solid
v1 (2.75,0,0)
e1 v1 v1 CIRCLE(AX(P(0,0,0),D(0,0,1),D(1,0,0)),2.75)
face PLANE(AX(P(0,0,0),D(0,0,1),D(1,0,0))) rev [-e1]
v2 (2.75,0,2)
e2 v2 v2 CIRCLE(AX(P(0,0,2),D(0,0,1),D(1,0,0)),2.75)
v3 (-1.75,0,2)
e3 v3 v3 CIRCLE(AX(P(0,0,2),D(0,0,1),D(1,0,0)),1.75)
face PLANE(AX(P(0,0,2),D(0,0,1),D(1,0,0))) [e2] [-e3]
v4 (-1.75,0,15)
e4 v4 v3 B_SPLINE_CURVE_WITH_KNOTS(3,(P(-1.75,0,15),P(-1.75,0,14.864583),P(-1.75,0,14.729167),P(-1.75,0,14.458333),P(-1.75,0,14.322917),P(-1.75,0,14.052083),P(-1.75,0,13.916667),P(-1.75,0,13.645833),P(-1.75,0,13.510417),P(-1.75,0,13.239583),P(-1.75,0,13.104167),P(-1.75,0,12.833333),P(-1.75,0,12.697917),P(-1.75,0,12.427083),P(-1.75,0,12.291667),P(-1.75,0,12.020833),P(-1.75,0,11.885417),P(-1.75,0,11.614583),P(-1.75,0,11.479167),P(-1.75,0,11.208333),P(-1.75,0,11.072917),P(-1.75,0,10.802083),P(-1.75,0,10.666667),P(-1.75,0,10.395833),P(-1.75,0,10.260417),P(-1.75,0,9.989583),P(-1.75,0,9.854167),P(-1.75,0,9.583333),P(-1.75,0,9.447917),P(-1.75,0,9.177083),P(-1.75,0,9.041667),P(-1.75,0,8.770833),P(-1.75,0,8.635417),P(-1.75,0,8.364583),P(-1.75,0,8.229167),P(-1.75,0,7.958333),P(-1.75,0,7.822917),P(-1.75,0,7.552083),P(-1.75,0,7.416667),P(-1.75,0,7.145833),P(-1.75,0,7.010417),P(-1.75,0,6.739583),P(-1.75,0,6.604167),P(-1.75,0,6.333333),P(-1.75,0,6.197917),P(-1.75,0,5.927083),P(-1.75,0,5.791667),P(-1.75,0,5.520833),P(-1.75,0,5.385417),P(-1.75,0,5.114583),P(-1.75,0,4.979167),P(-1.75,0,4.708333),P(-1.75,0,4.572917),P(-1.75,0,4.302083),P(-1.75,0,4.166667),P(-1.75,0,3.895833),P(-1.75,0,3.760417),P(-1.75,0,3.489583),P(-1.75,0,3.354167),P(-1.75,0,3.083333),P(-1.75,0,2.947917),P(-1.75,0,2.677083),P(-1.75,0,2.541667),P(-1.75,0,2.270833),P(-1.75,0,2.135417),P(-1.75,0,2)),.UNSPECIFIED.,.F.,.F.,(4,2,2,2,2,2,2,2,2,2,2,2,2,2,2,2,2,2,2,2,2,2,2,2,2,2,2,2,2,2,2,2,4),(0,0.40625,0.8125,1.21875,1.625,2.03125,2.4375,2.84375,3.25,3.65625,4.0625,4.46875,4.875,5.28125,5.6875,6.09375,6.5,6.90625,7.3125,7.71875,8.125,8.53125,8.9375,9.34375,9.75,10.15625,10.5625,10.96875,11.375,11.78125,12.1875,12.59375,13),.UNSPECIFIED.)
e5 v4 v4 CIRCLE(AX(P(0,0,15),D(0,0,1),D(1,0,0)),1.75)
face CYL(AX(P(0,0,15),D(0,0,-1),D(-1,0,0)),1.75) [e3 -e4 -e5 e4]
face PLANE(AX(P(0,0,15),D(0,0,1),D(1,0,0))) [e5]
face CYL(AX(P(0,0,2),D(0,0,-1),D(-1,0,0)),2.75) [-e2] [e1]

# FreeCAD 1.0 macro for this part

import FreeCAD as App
import Part
import Sketcher

V = App.Vector

doc = App.newDocument("Part")
params = doc.addObject("Spreadsheet::Sheet", "Params")
for row, (alias, value) in enumerate([
    ("sketch1_diameter", "5.5 mm"),
    ("pad1_length", "2 mm"),
    ("sketch2_diameter", "3.5 mm"),
    ("pad2_length", "13 mm"),
], start=1):
    params.set(f"A{row}", alias)
    params.set(f"B{row}", "=" + value)
    params.setAlias(f"B{row}", alias)

body = doc.addObject("PartDesign::Body", "Body")

sketch1 = body.newObject("Sketcher::SketchObject", "Sketch")
sketch1.AttachmentSupport = (doc.getObject("XY_Plane"), [""])
sketch1.MapMode = "FlatFace"
sketch1.addGeometry(Part.Circle(V(0, 0, 0), V(0, 0, 1), 2.8), False)
sketch1.addConstraint(Sketcher.Constraint("Coincident", 0, 3, -1, 1))
sketch1.addConstraint(Sketcher.Constraint("Diameter", 0, 5.5))
sketch1.setExpression("Constraints[1]", "Params.sketch1_diameter")
pad1 = body.newObject("PartDesign::Pad", "Pad")
pad1.Profile = sketch1
pad1.setExpression("Length", "Params.pad1_length")

sketch2 = body.newObject("Sketcher::SketchObject", "Sketch001")
sketch2.AttachmentSupport = (doc.getObject("XY_Plane"), [""])
sketch2.MapMode = "FlatFace"
sketch2.AttachmentOffset = App.Placement(V(0, 0, 2), App.Rotation())
sketch2.addGeometry(Part.Circle(V(0, 0, 0), V(0, 0, 1), 1.8), False)
sketch2.addConstraint(Sketcher.Constraint("Coincident", 0, 3, -1, 1))
sketch2.addConstraint(Sketcher.Constraint("Diameter", 0, 3.5))
sketch2.setExpression("Constraints[1]", "Params.sketch2_diameter")
pad2 = body.newObject("PartDesign::Pad", "Pad001")
pad2.Profile = sketch2
pad2.setExpression("Length", "Params.pad2_length")

doc.recompute()
